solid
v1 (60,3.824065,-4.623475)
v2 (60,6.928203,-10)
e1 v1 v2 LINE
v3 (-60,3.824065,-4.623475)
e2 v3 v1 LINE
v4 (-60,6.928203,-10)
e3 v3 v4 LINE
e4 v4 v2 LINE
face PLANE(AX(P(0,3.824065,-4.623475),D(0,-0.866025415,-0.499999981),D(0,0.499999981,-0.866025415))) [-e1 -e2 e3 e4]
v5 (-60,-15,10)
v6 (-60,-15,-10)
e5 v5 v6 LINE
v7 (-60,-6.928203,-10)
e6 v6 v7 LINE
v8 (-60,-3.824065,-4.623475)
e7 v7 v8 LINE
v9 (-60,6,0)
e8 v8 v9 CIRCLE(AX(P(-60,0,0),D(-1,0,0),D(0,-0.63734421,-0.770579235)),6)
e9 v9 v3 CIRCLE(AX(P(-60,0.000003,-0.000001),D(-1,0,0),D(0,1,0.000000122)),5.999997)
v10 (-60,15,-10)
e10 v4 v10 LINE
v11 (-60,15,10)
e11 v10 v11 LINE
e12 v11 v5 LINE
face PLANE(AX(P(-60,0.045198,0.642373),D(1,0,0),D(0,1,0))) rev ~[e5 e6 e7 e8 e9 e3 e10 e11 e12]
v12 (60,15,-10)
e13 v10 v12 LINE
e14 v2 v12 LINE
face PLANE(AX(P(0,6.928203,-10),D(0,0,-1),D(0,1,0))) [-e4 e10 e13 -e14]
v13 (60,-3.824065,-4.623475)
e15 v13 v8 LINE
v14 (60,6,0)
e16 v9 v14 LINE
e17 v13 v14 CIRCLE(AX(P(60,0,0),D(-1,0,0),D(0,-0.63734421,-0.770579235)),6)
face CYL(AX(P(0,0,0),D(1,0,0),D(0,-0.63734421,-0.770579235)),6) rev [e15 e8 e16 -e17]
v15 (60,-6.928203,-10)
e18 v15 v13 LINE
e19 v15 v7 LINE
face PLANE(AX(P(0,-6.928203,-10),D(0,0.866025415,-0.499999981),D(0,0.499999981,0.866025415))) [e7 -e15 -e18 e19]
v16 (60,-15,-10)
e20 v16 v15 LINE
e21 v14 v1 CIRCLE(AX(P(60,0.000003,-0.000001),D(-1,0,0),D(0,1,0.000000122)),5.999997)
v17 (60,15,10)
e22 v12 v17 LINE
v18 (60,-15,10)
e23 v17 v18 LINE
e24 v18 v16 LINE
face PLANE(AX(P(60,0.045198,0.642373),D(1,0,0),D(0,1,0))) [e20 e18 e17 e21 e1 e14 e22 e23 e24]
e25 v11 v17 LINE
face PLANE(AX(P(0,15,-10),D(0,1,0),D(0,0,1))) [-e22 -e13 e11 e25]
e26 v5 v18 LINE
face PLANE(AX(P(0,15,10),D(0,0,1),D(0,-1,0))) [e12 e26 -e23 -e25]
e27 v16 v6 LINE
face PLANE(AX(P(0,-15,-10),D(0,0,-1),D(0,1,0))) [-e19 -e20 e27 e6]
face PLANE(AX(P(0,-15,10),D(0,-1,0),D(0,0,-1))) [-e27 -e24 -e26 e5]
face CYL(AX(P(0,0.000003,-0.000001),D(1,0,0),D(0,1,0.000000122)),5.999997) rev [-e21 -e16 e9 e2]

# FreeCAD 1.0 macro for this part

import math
import FreeCAD as App
import Part
import Sketcher
Q = App.Units.Quantity

doc = App.newDocument("Part")
body = doc.addObject("PartDesign::Body", "Body")

# Sketch on YZ plane
sketch1 = body.newObject("Sketcher::SketchObject", "Sketch")
sketch1.AttachmentSupport = (doc.getObject("YZ_Plane"), [""])
sketch1.MapMode = "FlatFace"
sketch1.addGeometry(Part.ArcOfCircle(Part.Circle(App.Vector(0, 0, 0), App.Vector(0, 0, 1), 6), math.radians(0), math.radians(230)), False)
sketch1.addGeometry(Part.ArcOfCircle(Part.Circle(App.Vector(0, 0, 0), App.Vector(0, 0, 1), 6), math.radians(-50), math.radians(0)), False)
sketch1.addGeometry(Part.LineSegment(App.Vector(4, -5, 0), App.Vector(7, -10, 0)), False)
sketch1.addGeometry(Part.LineSegment(App.Vector(7, -10, 0), App.Vector(15, -10, 0)), False)
sketch1.addGeometry(Part.LineSegment(App.Vector(15, -10, 0), App.Vector(15, 10, 0)), False)
sketch1.addGeometry(Part.LineSegment(App.Vector(15, 10, 0), App.Vector(-15, 10, 0)), False)
sketch1.addGeometry(Part.LineSegment(App.Vector(-15, 10, 0), App.Vector(-15, -10, 0)), False)
sketch1.addGeometry(Part.LineSegment(App.Vector(-15, -10, 0), App.Vector(-7, -10, 0)), False)
sketch1.addGeometry(Part.LineSegment(App.Vector(-7, -10, 0), App.Vector(-4, -5, 0)), False)
sketch1.addConstraint(Sketcher.Constraint("Tangent", 0, 1, 1, 2))
sketch1.addConstraint(Sketcher.Constraint("Coincident", 1, 1, 2, 1))
sketch1.addConstraint(Sketcher.Constraint("Coincident", 2, 2, 3, 1))
sketch1.addConstraint(Sketcher.Constraint("Coincident", 3, 2, 4, 1))
sketch1.addConstraint(Sketcher.Constraint("Coincident", 4, 2, 5, 1))
sketch1.addConstraint(Sketcher.Constraint("Coincident", 5, 2, 6, 1))
sketch1.addConstraint(Sketcher.Constraint("Coincident", 6, 2, 7, 1))
sketch1.addConstraint(Sketcher.Constraint("Coincident", 7, 2, 8, 1))
sketch1.addConstraint(Sketcher.Constraint("Coincident", 8, 2, 0, 2))
sketch1.addConstraint(Sketcher.Constraint("Horizontal", 3))
sketch1.addConstraint(Sketcher.Constraint("Vertical", 4))
sketch1.addConstraint(Sketcher.Constraint("Horizontal", 5))
sketch1.addConstraint(Sketcher.Constraint("Vertical", 6))
sketch1.addConstraint(Sketcher.Constraint("Horizontal", 7))
sketch1.addConstraint(Sketcher.Constraint("Coincident", 0, 3, -1, 1))
sketch1.addConstraint(Sketcher.Constraint("Symmetric", 3, 2, 5, 2, -1, 1))
sketch1.addConstraint(Sketcher.Constraint("Symmetric", 2, 2, 7, 2, -2))
sketch1.addConstraint(Sketcher.Constraint("Symmetric", 1, 1, 8, 2, -2))
sketch1.addConstraint(Sketcher.Constraint("PointOnObject", 0, 1, -1))
sketch1.addConstraint(Sketcher.Constraint("Radius", 0, Q("6 mm")))
sketch1.addConstraint(Sketcher.Constraint("DistanceX", 5, 2, 5, 1, Q("30 mm")))
sketch1.addConstraint(Sketcher.Constraint("DistanceY", 4, 1, 4, 2, Q("20 mm")))
sketch1.addConstraint(Sketcher.Constraint("Angle", 2, Q("-60.000001 deg")))
sketch1.addConstraint(Sketcher.Constraint("DistanceX", 1, 3, 2, 2, Q("6.9282 mm")))
pad1 = body.newObject("PartDesign::Pad", "Pad")
pad1.Profile = sketch1
pad1.Length = 120
pad1.Midplane = True

doc.recompute()
